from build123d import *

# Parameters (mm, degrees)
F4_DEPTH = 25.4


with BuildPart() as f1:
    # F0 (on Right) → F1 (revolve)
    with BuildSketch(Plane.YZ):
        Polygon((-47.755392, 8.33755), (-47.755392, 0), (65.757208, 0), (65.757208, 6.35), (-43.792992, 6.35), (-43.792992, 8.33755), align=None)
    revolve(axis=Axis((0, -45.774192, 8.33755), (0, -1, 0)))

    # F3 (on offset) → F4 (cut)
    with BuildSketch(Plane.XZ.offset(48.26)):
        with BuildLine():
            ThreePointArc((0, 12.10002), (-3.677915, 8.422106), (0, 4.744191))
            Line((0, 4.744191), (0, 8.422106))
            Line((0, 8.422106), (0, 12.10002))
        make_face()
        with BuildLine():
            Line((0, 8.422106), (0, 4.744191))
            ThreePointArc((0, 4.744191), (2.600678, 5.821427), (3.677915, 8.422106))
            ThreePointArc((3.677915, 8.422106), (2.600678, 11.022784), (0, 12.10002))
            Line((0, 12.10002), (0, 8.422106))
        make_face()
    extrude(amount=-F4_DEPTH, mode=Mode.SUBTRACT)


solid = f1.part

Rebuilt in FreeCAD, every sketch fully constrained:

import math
import FreeCAD as App
import Part
import Sketcher
from FreeCAD import Vector
Q = App.Units.Quantity


def add_polygon(sketch, points):
    """Adds a closed chain of lines whose ends are joined by coincident constraints."""
    first, n = sketch.GeometryCount, len(points)
    for a, b in zip(points, points[1:] + points[:1]):
        sketch.addGeometry(Part.LineSegment(App.Vector(*a, 0), App.Vector(*b, 0)), False)
    for i in range(n):
        sketch.addConstraint(Sketcher.Constraint("Coincident", first + i, 2, first + (i + 1) % n, 1))

doc = App.newDocument("Part")
params = doc.addObject("Spreadsheet::Sheet", "Params")
for row, (alias, value) in enumerate([
    ("sketch1_height", "0.25 in"),
    ("sketch1_width", "4.469 in"),
    ("sketch1_width2", "4.313 in"),
    ("revolution_angle", "360 deg"),
    ("pocket1_length", "1 in"),
], start=1):
    params.set(f"A{row}", alias)
    params.set(f"B{row}", "=" + value)
    params.setAlias(f"B{row}", alias)

body = doc.addObject("PartDesign::Body", "Body")

# Sketch on YZ plane
sketch1 = body.newObject("Sketcher::SketchObject", "Sketch")
sketch1.AttachmentSupport = (doc.getObject("YZ_Plane"), [""])
sketch1.MapMode = "FlatFace"
add_polygon(sketch1, [(-47.8, 8.3), (-47.8, 0), (65.8, 0), (65.8, 6.3), (-43.8, 6.3), (-43.8, 8.3)])  # lines 0-5
sketch1.addGeometry(Part.LineSegment(Vector(65.8, 8.3, 0), Vector(-47.8, 8.3, 0)), True)  # axis
sketch1.addConstraint([
    Sketcher.Constraint("Vertical", 0),
    Sketcher.Constraint("Horizontal", 1),
    Sketcher.Constraint("Vertical", 2),
    Sketcher.Constraint("Horizontal", 3),
    Sketcher.Constraint("Vertical", 4),
    Sketcher.Constraint("Horizontal", 5),
    Sketcher.Constraint("Horizontal", 6),
    Sketcher.Constraint("Coincident", 6, 2, 5, 2),
    Sketcher.Constraint("PointOnObject", 0, 2, -1),
    Sketcher.Constraint("Vertical", 2, 2, 6, 1),
    Sketcher.Constraint("DistanceY", 2, 1, 2, 2, Q("0.25 in")),
    Sketcher.Constraint("DistanceX", 1, 1, 1, 2, Q("4.469 in")),
    Sketcher.Constraint("DistanceX", 3, 2, 3, 1, Q("4.313 in")),
    Sketcher.Constraint("DistanceY", 0, 2, 0, 1, 8.33755),
    Sketcher.Constraint("DistanceX", -1, 1, 1, 2, 65.757208),
])
sketch1.setExpression("Constraints[16]", "Params.sketch1_height")
sketch1.setExpression("Constraints[17]", "Params.sketch1_width")
sketch1.setExpression("Constraints[18]", "Params.sketch1_width2")
revolution = body.newObject("PartDesign::Revolution", "Revolution")
revolution.Profile = sketch1
revolution.ReferenceAxis = (sketch1, ["Axis0"])
revolution.setExpression("Angle", "Params.revolution_angle")

# Sketch on XZ plane
sketch2 = body.newObject("Sketcher::SketchObject", "Sketch001")
sketch2.AttachmentSupport = (doc.getObject("XZ_Plane"), [""])
sketch2.MapMode = "FlatFace"
sketch2.AttachmentOffset = App.Placement(Vector(0, 0, 1.9 * 25.4), App.Rotation())
sketch2.addGeometry([
    Part.ArcOfCircle(Part.Circle(Vector(0, 8.4, 0), Vector(0, 0, 1), 3.7), math.radians(90), math.radians(270)),
    Part.ArcOfCircle(Part.Circle(Vector(0, 8.4, 0), Vector(0, 0, 1), 3.7), math.radians(-90), math.radians(0)),
    Part.ArcOfCircle(Part.Circle(Vector(0, 8.4, 0), Vector(0, 0, 1), 3.7), math.radians(0), math.radians(90)),
], False)
sketch2.addConstraint([
    Sketcher.Constraint("Tangent", 0, 2, 1, 1),
    Sketcher.Constraint("Tangent", 1, 2, 2, 1),
    Sketcher.Constraint("Tangent", 2, 2, 0, 1),
    Sketcher.Constraint("PointOnObject", 0, 3, -2),
    Sketcher.Constraint("PointOnObject", 0, 2, -2),
    Sketcher.Constraint("PointOnObject", 2, 2, -2),
    Sketcher.Constraint("Horizontal", 2, 3, 1, 2),
    Sketcher.Constraint("Radius", 1, Q("0.1447998 in")),
    Sketcher.Constraint("DistanceY", -1, 1, 0, 2, 4.744191),
])
pocket1 = body.newObject("PartDesign::Pocket", "Pocket")
pocket1.Profile = sketch2
pocket1.setExpression("Length", "Params.pocket1_length")

doc.recompute()
